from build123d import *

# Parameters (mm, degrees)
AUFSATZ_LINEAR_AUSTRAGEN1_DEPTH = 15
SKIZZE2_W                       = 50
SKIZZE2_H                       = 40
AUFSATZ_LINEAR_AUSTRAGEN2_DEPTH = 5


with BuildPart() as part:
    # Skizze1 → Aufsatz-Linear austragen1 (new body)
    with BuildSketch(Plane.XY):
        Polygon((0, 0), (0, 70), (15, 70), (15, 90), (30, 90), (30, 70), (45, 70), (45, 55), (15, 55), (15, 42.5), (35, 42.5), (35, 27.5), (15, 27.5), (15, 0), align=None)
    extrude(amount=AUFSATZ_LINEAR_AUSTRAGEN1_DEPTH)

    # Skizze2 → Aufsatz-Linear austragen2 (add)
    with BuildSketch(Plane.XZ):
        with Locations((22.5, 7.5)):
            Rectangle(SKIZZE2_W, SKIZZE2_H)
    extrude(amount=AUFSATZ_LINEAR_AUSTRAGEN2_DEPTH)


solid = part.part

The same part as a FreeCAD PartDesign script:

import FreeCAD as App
import Part
import Sketcher
from FreeCAD import Vector
Q = App.Units.Quantity


def add_polygon(sketch, points):
    """Adds a closed chain of lines whose ends are joined by coincident constraints."""
    first, n = sketch.GeometryCount, len(points)
    for a, b in zip(points, points[1:] + points[:1]):
        sketch.addGeometry(Part.LineSegment(App.Vector(*a, 0), App.Vector(*b, 0)), False)
    for i in range(n):
        sketch.addConstraint(Sketcher.Constraint("Coincident", first + i, 2, first + (i + 1) % n, 1))

doc = App.newDocument("Part")
body = doc.addObject("PartDesign::Body", "Body")

sketch1 = doc.addObject("Sketcher::SketchObject", "Sketch")
body.addObject(sketch1)
sketch1.AttachmentSupport = (doc.XY_Plane, [""])
sketch1.MapMode = "FlatFace"
add_polygon(sketch1, [(0, 70), (0, 0), (15, 0), (15, 28), (35, 28), (35, 42), (15, 42), (15, 55), (45, 55), (45, 70), (30, 70), (30, 90), (15, 90), (15, 70)])
sketch1.addConstraint(Sketcher.Constraint("Vertical", 0))
sketch1.addConstraint(Sketcher.Constraint("Horizontal", 1))
sketch1.addConstraint(Sketcher.Constraint("Vertical", 2))
sketch1.addConstraint(Sketcher.Constraint("Horizontal", 3))
sketch1.addConstraint(Sketcher.Constraint("Vertical", 4))
sketch1.addConstraint(Sketcher.Constraint("Horizontal", 5))
sketch1.addConstraint(Sketcher.Constraint("Vertical", 6))
sketch1.addConstraint(Sketcher.Constraint("Horizontal", 7))
sketch1.addConstraint(Sketcher.Constraint("Vertical", 8))
sketch1.addConstraint(Sketcher.Constraint("Horizontal", 9))
sketch1.addConstraint(Sketcher.Constraint("Vertical", 10))
sketch1.addConstraint(Sketcher.Constraint("Horizontal", 11))
sketch1.addConstraint(Sketcher.Constraint("Vertical", 12))
sketch1.addConstraint(Sketcher.Constraint("Horizontal", 13))
sketch1.addConstraint(Sketcher.Constraint("Coincident", 0, 2, -1, 1))
sketch1.addConstraint(Sketcher.Constraint("Horizontal", 9, 2, 12, 2))
sketch1.addConstraint(Sketcher.Constraint("Vertical", 2, 2, 5, 2))
sketch1.addConstraint(Sketcher.Constraint("Vertical", 6, 2, 11, 2))
sketch1.addConstraint(Sketcher.Constraint("Equal", 1, 9))
sketch1.addConstraint(Sketcher.Constraint("Equal", 9, 11))
sketch1.addConstraint(Sketcher.Constraint("Equal", 13, 4))
sketch1.addConstraint(Sketcher.Constraint("Equal", 4, 8))
sketch1.addConstraint(Sketcher.Constraint("Equal", 5, 10))
sketch1.addConstraint(Sketcher.Constraint("DistanceX", 1, 1, 1, 2, Q("15 mm")))
sketch1.addConstraint(Sketcher.Constraint("DistanceX", 3, 1, 3, 2, Q("20 mm")))
sketch1.addConstraint(Sketcher.Constraint("DistanceY", 0, 2, 0, 1, Q("70 mm")))
sketch1.addConstraint(Sketcher.Constraint("DistanceY", 2, 1, 2, 2, Q("27.5 mm")))
pad1 = doc.addObject("PartDesign::Pad", "Pad")
body.addObject(pad1)
pad1.Profile = sketch1
pad1.Length = 15

sketch2 = doc.addObject("Sketcher::SketchObject", "Sketch001")
body.addObject(sketch2)
sketch2.AttachmentSupport = (doc.XZ_Plane, [""])
sketch2.MapMode = "FlatFace"
add_polygon(sketch2, [(-2, 28), (-2, -12), (48, -12), (48, 28)])
sketch2.addConstraint(Sketcher.Constraint("Vertical", 0))
sketch2.addConstraint(Sketcher.Constraint("Horizontal", 1))
sketch2.addConstraint(Sketcher.Constraint("Vertical", 2))
sketch2.addConstraint(Sketcher.Constraint("Horizontal", 3))
sketch2.addConstraint(Sketcher.Constraint("DistanceX", 1, 1, 1, 2, Q("50 mm")))
sketch2.addConstraint(Sketcher.Constraint("DistanceY", 0, 2, 0, 1, Q("40 mm")))
sketch2.addConstraint(Sketcher.Constraint("DistanceX", 0, 2, -1, 1, Q("2.5 mm")))
sketch2.addConstraint(Sketcher.Constraint("DistanceY", 0, 2, -1, 1, Q("12.5 mm")))
pad2 = doc.addObject("PartDesign::Pad", "Pad001")
body.addObject(pad2)
pad2.Profile = sketch2
pad2.Length = 5

doc.recompute()
